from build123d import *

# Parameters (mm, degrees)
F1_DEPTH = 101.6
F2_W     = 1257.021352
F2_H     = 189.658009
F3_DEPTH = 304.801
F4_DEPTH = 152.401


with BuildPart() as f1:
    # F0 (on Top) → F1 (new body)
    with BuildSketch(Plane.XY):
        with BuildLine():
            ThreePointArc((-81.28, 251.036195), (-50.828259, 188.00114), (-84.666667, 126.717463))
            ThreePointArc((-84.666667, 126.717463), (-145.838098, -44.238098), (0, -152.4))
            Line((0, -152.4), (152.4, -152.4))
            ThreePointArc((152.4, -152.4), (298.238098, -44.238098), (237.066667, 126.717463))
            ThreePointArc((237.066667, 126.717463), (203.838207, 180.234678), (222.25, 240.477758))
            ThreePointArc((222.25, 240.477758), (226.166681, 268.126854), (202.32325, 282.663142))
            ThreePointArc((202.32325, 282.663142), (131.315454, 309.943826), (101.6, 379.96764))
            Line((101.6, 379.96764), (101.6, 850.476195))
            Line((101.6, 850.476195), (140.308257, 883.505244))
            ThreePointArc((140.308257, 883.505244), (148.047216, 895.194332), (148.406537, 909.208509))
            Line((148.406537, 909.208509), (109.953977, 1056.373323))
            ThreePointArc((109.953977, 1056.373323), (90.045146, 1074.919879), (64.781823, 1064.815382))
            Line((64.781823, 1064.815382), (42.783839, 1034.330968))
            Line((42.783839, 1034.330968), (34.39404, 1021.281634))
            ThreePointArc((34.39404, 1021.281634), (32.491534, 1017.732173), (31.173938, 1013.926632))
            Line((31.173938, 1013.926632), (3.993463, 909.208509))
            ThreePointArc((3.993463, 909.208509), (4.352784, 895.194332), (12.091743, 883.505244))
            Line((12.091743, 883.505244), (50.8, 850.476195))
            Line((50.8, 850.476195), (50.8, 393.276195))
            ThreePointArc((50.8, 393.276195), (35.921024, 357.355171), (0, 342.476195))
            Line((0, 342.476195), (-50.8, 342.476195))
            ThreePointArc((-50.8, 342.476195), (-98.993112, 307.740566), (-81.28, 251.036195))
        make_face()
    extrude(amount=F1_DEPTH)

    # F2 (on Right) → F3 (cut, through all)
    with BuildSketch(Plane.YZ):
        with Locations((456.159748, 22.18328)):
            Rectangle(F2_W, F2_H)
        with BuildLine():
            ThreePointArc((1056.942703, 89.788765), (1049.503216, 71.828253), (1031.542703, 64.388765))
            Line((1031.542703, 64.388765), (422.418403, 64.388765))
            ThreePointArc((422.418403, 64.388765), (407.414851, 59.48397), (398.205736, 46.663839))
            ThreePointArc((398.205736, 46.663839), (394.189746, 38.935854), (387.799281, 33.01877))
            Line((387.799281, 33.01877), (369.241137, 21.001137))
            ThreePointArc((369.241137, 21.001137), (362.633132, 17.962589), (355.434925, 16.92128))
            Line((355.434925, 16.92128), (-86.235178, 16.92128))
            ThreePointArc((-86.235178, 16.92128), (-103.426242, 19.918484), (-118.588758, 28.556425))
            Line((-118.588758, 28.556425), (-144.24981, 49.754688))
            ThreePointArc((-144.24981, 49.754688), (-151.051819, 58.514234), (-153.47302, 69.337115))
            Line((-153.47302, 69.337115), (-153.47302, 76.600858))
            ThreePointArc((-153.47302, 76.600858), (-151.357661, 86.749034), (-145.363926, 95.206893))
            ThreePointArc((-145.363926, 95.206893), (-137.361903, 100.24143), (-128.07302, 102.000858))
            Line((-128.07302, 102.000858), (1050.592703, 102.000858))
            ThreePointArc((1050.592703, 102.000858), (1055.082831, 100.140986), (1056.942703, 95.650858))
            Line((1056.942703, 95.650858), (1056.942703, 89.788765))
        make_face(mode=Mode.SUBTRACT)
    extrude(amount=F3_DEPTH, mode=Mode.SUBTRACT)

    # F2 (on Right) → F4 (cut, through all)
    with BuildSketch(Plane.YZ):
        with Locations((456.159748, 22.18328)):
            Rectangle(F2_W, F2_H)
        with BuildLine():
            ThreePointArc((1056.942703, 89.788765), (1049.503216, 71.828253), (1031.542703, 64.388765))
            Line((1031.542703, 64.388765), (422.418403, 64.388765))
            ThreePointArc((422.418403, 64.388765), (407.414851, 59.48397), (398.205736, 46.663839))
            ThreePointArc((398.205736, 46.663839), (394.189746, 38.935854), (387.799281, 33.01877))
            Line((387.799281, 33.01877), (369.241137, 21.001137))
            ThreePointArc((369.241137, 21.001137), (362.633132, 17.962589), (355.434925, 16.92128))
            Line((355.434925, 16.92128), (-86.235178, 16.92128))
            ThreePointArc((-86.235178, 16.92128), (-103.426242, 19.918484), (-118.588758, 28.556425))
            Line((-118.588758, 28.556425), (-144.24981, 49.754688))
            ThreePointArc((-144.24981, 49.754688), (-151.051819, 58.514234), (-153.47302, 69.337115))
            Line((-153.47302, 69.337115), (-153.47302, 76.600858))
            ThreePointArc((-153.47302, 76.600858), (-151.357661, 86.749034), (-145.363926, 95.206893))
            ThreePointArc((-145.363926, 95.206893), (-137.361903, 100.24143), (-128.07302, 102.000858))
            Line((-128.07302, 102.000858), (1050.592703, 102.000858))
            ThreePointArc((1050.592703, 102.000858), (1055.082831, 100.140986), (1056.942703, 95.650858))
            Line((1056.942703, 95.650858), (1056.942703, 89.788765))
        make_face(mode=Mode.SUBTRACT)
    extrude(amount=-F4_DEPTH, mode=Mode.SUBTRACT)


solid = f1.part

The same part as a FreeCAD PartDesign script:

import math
import FreeCAD as App
import Part
import Sketcher
from FreeCAD import Vector
Q = App.Units.Quantity

doc = App.newDocument("Part")
body = doc.addObject("PartDesign::Body", "Body")

sketch1 = doc.addObject("Sketcher::SketchObject", "Sketch")
body.addObject(sketch1)
sketch1.AttachmentSupport = (doc.XY_Plane, [""])
sketch1.MapMode = "FlatFace"
sketch1.addGeometry([
    Part.ArcOfCircle(Part.Circle(Vector(-127, 190.076195, 0), Vector(0, 0, 1), 76.2), math.radians(-56.251012), math.radians(53.130102)),
    Part.ArcOfCircle(Part.Circle(Vector(-0.000001, 0, 0), Vector(0, 0, 1), 152.4), math.radians(123.748988), math.radians(270)),
    Part.LineSegment(Vector(0, -152.4, 0), Vector(152.4, -152.4, 0)),
    Part.ArcOfCircle(Part.Circle(Vector(152.400001, 0, 0), Vector(0, 0, 1), 152.4), math.radians(-90), math.radians(56.251012)),
    Part.ArcOfCircle(Part.Circle(Vector(279.4, 190.076195, 0), Vector(0, 0, 1), 76.2), math.radians(138.590378), math.radians(236.251012)),
    Part.ArcOfCircle(Part.Circle(Vector(203.200001, 257.278279, 0), Vector(0, 0, 1), 25.399999), math.radians(-41.409624), math.radians(91.978115)),
    Part.ArcOfCircle(Part.Circle(Vector(198.962519, 379.967641, 0), Vector(0, 0, 1), 97.362519), math.radians(-179.999999), math.radians(-88.021888)),
    Part.LineSegment(Vector(101.6, 379.96764, 0), Vector(101.6, 850.476195, 0)),
    Part.LineSegment(Vector(101.6, 850.476195, 0), Vector(140.308257, 883.505244, 0)),
    Part.ArcOfCircle(Part.Circle(Vector(123.821201, 902.827178, 0), Vector(0, 0, 1), 25.400003), math.radians(-49.526474), math.radians(14.550516)),
    Part.LineSegment(Vector(148.406537, 909.208509, 0), Vector(109.953977, 1056.373323, 0)),
    Part.ArcOfCircle(Part.Circle(Vector(85.379019, 1049.952155, 0), Vector(0, 0, 1), 25.4), math.radians(14.643376), math.radians(144.185252)),
    Part.LineSegment(Vector(64.781823, 1064.815382, 0), Vector(42.783839, 1034.330968, 0)),
    Part.LineSegment(Vector(42.783839, 1034.330968, 0), Vector(34.39404, 1021.281634, 0)),
    Part.ArcOfCircle(Part.Circle(Vector(55.759293, 1007.545289, 0), Vector(0, 0, 1), 25.400024), math.radians(147.261851), math.radians(165.449468)),
    Part.LineSegment(Vector(31.173938, 1013.926632, 0), Vector(3.993463, 909.208509, 0)),
    Part.ArcOfCircle(Part.Circle(Vector(28.578799, 902.827178, 0), Vector(0, 0, 1), 25.400003), math.radians(165.449484), math.radians(229.526474)),
    Part.LineSegment(Vector(12.091743, 883.505244, 0), Vector(50.8, 850.476195, 0)),
    Part.LineSegment(Vector(50.8, 850.476195, 0), Vector(50.8, 393.276195, 0)),
    Part.ArcOfCircle(Part.Circle(Vector(-0.000002, 393.276197, 0), Vector(0, 0, 1), 50.800002), math.radians(-89.999998), math.radians(-0.000002)),
    Part.LineSegment(Vector(0, 342.476195, 0), Vector(-50.8, 342.476195, 0)),
    Part.ArcOfCircle(Part.Circle(Vector(-50.800001, 291.676195, 0), Vector(0, 0, 1), 50.8), math.radians(89.999999), math.radians(233.130103)),
], False)
sketch1.addConstraint([
    Sketcher.Constraint("Tangent", 0, 1, 1, 1),
    Sketcher.Constraint("Tangent", 1, 2, 2, 1),
    Sketcher.Constraint("Tangent", 2, 2, 3, 1),
    Sketcher.Constraint("Tangent", 3, 2, 4, 2),
    Sketcher.Constraint("Tangent", 4, 1, 5, 1),
    Sketcher.Constraint("Tangent", 5, 2, 6, 2),
    Sketcher.Constraint("Tangent", 6, 1, 7, 1),
    Sketcher.Constraint("Coincident", 7, 2, 8, 1),
    Sketcher.Constraint("Tangent", 8, 2, 9, 1),
    Sketcher.Constraint("Coincident", 9, 2, 10, 1),
    Sketcher.Constraint("Tangent", 10, 2, 11, 1),
    Sketcher.Constraint("Tangent", 11, 2, 12, 1),
    Sketcher.Constraint("Coincident", 12, 2, 13, 1),
    Sketcher.Constraint("Tangent", 13, 2, 14, 1),
    Sketcher.Constraint("Tangent", 14, 2, 15, 1),
    Sketcher.Constraint("Tangent", 15, 2, 16, 1),
    Sketcher.Constraint("Tangent", 16, 2, 17, 1),
    Sketcher.Constraint("Coincident", 17, 2, 18, 1),
    Sketcher.Constraint("Tangent", 18, 2, 19, 2),
    Sketcher.Constraint("Tangent", 19, 1, 20, 1),
    Sketcher.Constraint("Tangent", 20, 2, 21, 1),
    Sketcher.Constraint("Tangent", 21, 2, 0, 2),
    Sketcher.Constraint("Horizontal", 2),
    Sketcher.Constraint("Vertical", 7),
    Sketcher.Constraint("Vertical", 18),
    Sketcher.Constraint("Horizontal", 20),
    Sketcher.Constraint("Coincident", 1, 3, -1, 1),
    Sketcher.Constraint("Equal", 1, 3),
    Sketcher.Constraint("Equal", 0, 4),
    Sketcher.Constraint("Equal", 5, 11),
    Sketcher.Constraint("Equal", 9, 16),
    Sketcher.Constraint("Equal", 19, 21),
    Sketcher.Constraint("PointOnObject", 19, 3, -2),
    Sketcher.Constraint("Horizontal", 0, 3, 4, 3),
    Sketcher.Constraint("Horizontal", 9, 3, 16, 3),
    Sketcher.Constraint("Horizontal", 9, 2, 15, 2),
    Sketcher.Constraint("Horizontal", 8, 2, 16, 2),
    Sketcher.Constraint("Horizontal", 7, 2, 17, 2),
    Sketcher.Constraint("Radius", 0, Q("3 in")),
    Sketcher.Constraint("Radius", 1, Q("6 in")),
    Sketcher.Constraint("Radius", 5, Q("1 in")),
    Sketcher.Constraint("Radius", 9, Q("1.0000001 in")),
    Sketcher.Constraint("Radius", 19, Q("2.0000001 in")),
    Sketcher.Constraint("DistanceX", 2, 1, 2, 2, Q("6 in")),
    Sketcher.Constraint("DistanceX", 20, 2, 20, 1, Q("2 in")),
    Sketcher.Constraint("DistanceY", 18, 2, 18, 1, Q("18 in")),
    Sketcher.Constraint("DistanceX", 0, 3, -1, 1, Q("5 in")),
    Sketcher.Constraint("DistanceX", -1, 1, 5, 3, Q("8 in")),
    Sketcher.Constraint("DistanceX", -1, 1, 6, 1, Q("4 in")),
    Sketcher.Constraint("Radius", 6, 97.362519),
    Sketcher.Constraint("Radius", 14, 25.400024),
    Sketcher.Constraint("DistanceX", -1, 1, 9, 3, 123.821201),
    Sketcher.Constraint("DistanceY", 5, 3, 9, 3, 645.548899),
    Sketcher.Constraint("DistanceX", 11, 3, 6, 3, 113.5835),
    Sketcher.Constraint("DistanceX", 13, 2, 12, 2, 8.389799),
    Sketcher.Constraint("DistanceX", 14, 2, 13, 2, 3.220102),
    Sketcher.Constraint("DistanceY", -1, 1, 14, 3, 1007.545289),
    Sketcher.Constraint("DistanceY", -1, 1, 9, 2, 909.208509),
    Sketcher.Constraint("DistanceY", -1, 1, 11, 2, 1064.815382),
])
pad1 = doc.addObject("PartDesign::Pad", "Pad")
body.addObject(pad1)
pad1.Profile = sketch1
pad1.Length = Q("4 in")

sketch2 = doc.addObject("Sketcher::SketchObject", "Sketch001")
body.addObject(sketch2)
sketch2.AttachmentSupport = (doc.YZ_Plane, [""])
sketch2.MapMode = "FlatFace"
sketch2.addGeometry([
    Part.LineSegment(Vector(-172.350928, 117.012285, 0), Vector(-172.350928, -72.645725, 0)),
    Part.LineSegment(Vector(-172.350928, -72.645725, 0), Vector(1084.670424, -72.645725, 0)),
    Part.LineSegment(Vector(1084.670424, -72.645725, 0), Vector(1084.670424, 117.012285, 0)),
    Part.LineSegment(Vector(1084.670424, 117.012285, 0), Vector(-172.350928, 117.012285, 0)),
    Part.LineSegment(Vector(1056.942703, 95.650858, 0), Vector(1056.942703, 89.788765, 0)),
    Part.ArcOfCircle(Part.Circle(Vector(1031.542704, 89.788764, 0), Vector(0, 0, 1), 25.399999), math.radians(-90.000002), math.radians(0.000002)),
    Part.LineSegment(Vector(1031.542703, 64.388765, 0), Vector(422.418403, 64.388765, 0)),
    Part.ArcOfCircle(Part.Circle(Vector(422.418403, 38.988765, 0), Vector(0, 0, 1), 25.4), math.radians(90), math.radians(162.412119)),
    Part.ArcOfCircle(Part.Circle(Vector(373.993067, 54.338915, 0), Vector(0, 0, 1), 25.400002), math.radians(-57.074255), math.radians(-17.587884)),
    Part.LineSegment(Vector(387.799281, 33.01877, 0), Vector(369.241137, 21.001137, 0)),
    Part.ArcOfCircle(Part.Circle(Vector(355.434927, 42.321272, 0), Vector(0, 0, 1), 25.399992), math.radians(-90.000004), math.radians(-57.074249)),
    Part.LineSegment(Vector(355.434925, 16.92128, 0), Vector(-86.235178, 16.92128, 0)),
    Part.ArcOfCircle(Part.Circle(Vector(-86.235177, 67.721283, 0), Vector(0, 0, 1), 50.800003), math.radians(-129.55967), math.radians(-90.000001)),
    Part.LineSegment(Vector(-118.588758, 28.556425, 0), Vector(-144.24981, 49.754688, 0)),
    Part.ArcOfCircle(Part.Circle(Vector(-128.073014, 69.337118, 0), Vector(0, 0, 1), 25.400006), math.radians(-179.999992), math.radians(-129.559678)),
    Part.LineSegment(Vector(-153.47302, 69.337115, 0), Vector(-153.47302, 76.600858, 0)),
    Part.ArcOfCircle(Part.Circle(Vector(-128.07302, 76.600857, 0), Vector(0, 0, 1), 25.4), math.radians(132.901835), math.radians(179.999998)),
    Part.ArcOfCircle(Part.Circle(Vector(-128.07302, 76.60086, 0), Vector(0, 0, 1), 25.399998), math.radians(90), math.radians(132.90184)),
    Part.LineSegment(Vector(-128.07302, 102.000858, 0), Vector(1050.592703, 102.000858, 0)),
    Part.ArcOfCircle(Part.Circle(Vector(1050.592703, 95.650858, 0), Vector(0, 0, 1), 6.35), math.radians(0.000002), math.radians(89.999998)),
], False)
sketch2.addConstraint([
    Sketcher.Constraint("Coincident", 0, 2, 1, 1),
    Sketcher.Constraint("Coincident", 1, 2, 2, 1),
    Sketcher.Constraint("Coincident", 2, 2, 3, 1),
    Sketcher.Constraint("Coincident", 3, 2, 0, 1),
    Sketcher.Constraint("Coincident", 4, 2, 5, 2),
    Sketcher.Constraint("Coincident", 5, 1, 6, 1),
    Sketcher.Constraint("Coincident", 6, 2, 7, 1),
    Sketcher.Constraint("Coincident", 7, 2, 8, 2),
    Sketcher.Constraint("Coincident", 8, 1, 9, 1),
    Sketcher.Constraint("Coincident", 9, 2, 10, 2),
    Sketcher.Constraint("Coincident", 10, 1, 11, 1),
    Sketcher.Constraint("Coincident", 11, 2, 12, 2),
    Sketcher.Constraint("Coincident", 12, 1, 13, 1),
    Sketcher.Constraint("Coincident", 13, 2, 14, 2),
    Sketcher.Constraint("Coincident", 14, 1, 15, 1),
    Sketcher.Constraint("Coincident", 15, 2, 16, 2),
    Sketcher.Constraint("Coincident", 16, 1, 17, 2),
    Sketcher.Constraint("Coincident", 17, 1, 18, 1),
    Sketcher.Constraint("Coincident", 18, 2, 19, 2),
    Sketcher.Constraint("Coincident", 19, 1, 4, 1),
    Sketcher.Constraint("Vertical", 0),
    Sketcher.Constraint("Horizontal", 1),
    Sketcher.Constraint("Vertical", 2),
    Sketcher.Constraint("Horizontal", 3),
    Sketcher.Constraint("Vertical", 4),
    Sketcher.Constraint("Horizontal", 6),
    Sketcher.Constraint("Horizontal", 11),
    Sketcher.Constraint("Vertical", 15),
    Sketcher.Constraint("Horizontal", 18),
    Sketcher.Constraint("Coincident", 17, 3, 16, 3),
    Sketcher.Constraint("Radius", 5, Q("1 in")),
    Sketcher.Constraint("Radius", 7, Q("1 in")),
    Sketcher.Constraint("Radius", 8, Q("1.0000001 in")),
    Sketcher.Constraint("Radius", 12, Q("2.0000001 in")),
    Sketcher.Constraint("Radius", 16, Q("1 in")),
    Sketcher.Constraint("Radius", 19, Q("0.25 in")),
    Sketcher.Constraint("DistanceY", 7, 3, 4, 2, Q("2 in")),
    Sketcher.Constraint("DistanceX", 5, 1, 4, 2, Q("1 in")),
    Sketcher.Constraint("DistanceX", 15, 2, 17, 1, Q("1 in")),
    Sketcher.Constraint("DistanceY", 15, 2, 17, 1, Q("1 in")),
    Sketcher.Constraint("DistanceX", 18, 2, 4, 2, Q("0.25 in")),
    Sketcher.Constraint("DistanceY", 19, 1, 18, 2, Q("0.25 in")),
    Sketcher.Constraint("Radius", 10, 25.399992),
    Sketcher.Constraint("DistanceX", 6, 2, 6, 1, 609.1243),
    Sketcher.Constraint("Radius", 14, 25.400006),
    Sketcher.Constraint("DistanceX", 1, 1, 1, 2, 1257.021352),
    Sketcher.Constraint("DistanceY", 0, 2, 0, 1, 189.658009),
    Sketcher.Constraint("DistanceX", 7, 3, 5, 3, 609.124301),
    Sketcher.Constraint("DistanceY", 12, 3, 3, 2, 49.291002),
    Sketcher.Constraint("DistanceY", 8, 1, 10, 3, 9.302502),
    Sketcher.Constraint("DistanceX", 9, 2, 7, 2, 28.964599),
    Sketcher.Constraint("DistanceY", 9, 2, 7, 2, 25.662702),
    Sketcher.Constraint("Distance", 9, 22.10946),
    Sketcher.Constraint("Distance", 13, 33.28447),
    Sketcher.Constraint("DistanceX", 11, 2, 11, 1, 441.670103),
    Sketcher.Constraint("DistanceX", 18, 1, 18, 2, 1178.665723),
    Sketcher.Constraint("DistanceY", 4, 2, 4, 1, 5.862093),
    Sketcher.Constraint("DistanceY", 15, 1, 15, 2, 7.263743),
    Sketcher.Constraint("DistanceY", -1, 1, 10, 3, 42.321272),
    Sketcher.Constraint("DistanceY", -1, 1, 14, 3, 69.337118),
    Sketcher.Constraint("DistanceX", 16, 3, -1, 1, 128.07302),
    Sketcher.Constraint("DistanceY", -1, 1, 17, 3, 76.60086),
    Sketcher.Constraint("DistanceX", 0, 2, -1, 1, 172.350928),
    Sketcher.Constraint("DistanceY", -1, 1, 7, 2, 46.663839),
    Sketcher.Constraint("DistanceX", 11, 2, -1, 1, 86.235178),
    Sketcher.Constraint("DistanceX", 12, 1, -1, 1, 118.588758),
    Sketcher.Constraint("DistanceX", 13, 2, -1, 1, 144.24981),
    Sketcher.Constraint("DistanceY", 14, 1, 16, 1, 25.869778),
])
pocket1 = doc.addObject("PartDesign::Pocket", "Pocket")
body.addObject(pocket1)
pocket1.Profile = sketch2
pocket1.Type = "ThroughAll"
pocket1.Reversed = True

sketch3 = doc.addObject("Sketcher::SketchObject", "Sketch002")
body.addObject(sketch3)
sketch3.AttachmentSupport = (doc.YZ_Plane, [""])
sketch3.MapMode = "FlatFace"
sketch3.addGeometry([
    Part.LineSegment(Vector(-172.350928, 117.012285, 0), Vector(-172.350928, -72.645725, 0)),
    Part.LineSegment(Vector(-172.350928, -72.645725, 0), Vector(1084.670424, -72.645725, 0)),
    Part.LineSegment(Vector(1084.670424, -72.645725, 0), Vector(1084.670424, 117.012285, 0)),
    Part.LineSegment(Vector(1084.670424, 117.012285, 0), Vector(-172.350928, 117.012285, 0)),
    Part.LineSegment(Vector(1056.942703, 95.650858, 0), Vector(1056.942703, 89.788765, 0)),
    Part.ArcOfCircle(Part.Circle(Vector(1031.542704, 89.788764, 0), Vector(0, 0, 1), 25.399999), math.radians(-90.000002), math.radians(0.000002)),
    Part.LineSegment(Vector(1031.542703, 64.388765, 0), Vector(422.418403, 64.388765, 0)),
    Part.ArcOfCircle(Part.Circle(Vector(422.418403, 38.988765, 0), Vector(0, 0, 1), 25.4), math.radians(90), math.radians(162.412119)),
    Part.ArcOfCircle(Part.Circle(Vector(373.993067, 54.338915, 0), Vector(0, 0, 1), 25.400002), math.radians(-57.074255), math.radians(-17.587884)),
    Part.LineSegment(Vector(387.799281, 33.01877, 0), Vector(369.241137, 21.001137, 0)),
    Part.ArcOfCircle(Part.Circle(Vector(355.434927, 42.321272, 0), Vector(0, 0, 1), 25.399992), math.radians(-90.000004), math.radians(-57.074249)),
    Part.LineSegment(Vector(355.434925, 16.92128, 0), Vector(-86.235178, 16.92128, 0)),
    Part.ArcOfCircle(Part.Circle(Vector(-86.235177, 67.721283, 0), Vector(0, 0, 1), 50.800003), math.radians(-129.55967), math.radians(-90.000001)),
    Part.LineSegment(Vector(-118.588758, 28.556425, 0), Vector(-144.24981, 49.754688, 0)),
    Part.ArcOfCircle(Part.Circle(Vector(-128.073014, 69.337118, 0), Vector(0, 0, 1), 25.400006), math.radians(-179.999992), math.radians(-129.559678)),
    Part.LineSegment(Vector(-153.47302, 69.337115, 0), Vector(-153.47302, 76.600858, 0)),
    Part.ArcOfCircle(Part.Circle(Vector(-128.07302, 76.600857, 0), Vector(0, 0, 1), 25.4), math.radians(132.901835), math.radians(179.999998)),
    Part.ArcOfCircle(Part.Circle(Vector(-128.07302, 76.60086, 0), Vector(0, 0, 1), 25.399998), math.radians(90), math.radians(132.90184)),
    Part.LineSegment(Vector(-128.07302, 102.000858, 0), Vector(1050.592703, 102.000858, 0)),
    Part.ArcOfCircle(Part.Circle(Vector(1050.592703, 95.650858, 0), Vector(0, 0, 1), 6.35), math.radians(0.000002), math.radians(89.999998)),
], False)
sketch3.addConstraint([
    Sketcher.Constraint("Coincident", 0, 2, 1, 1),
    Sketcher.Constraint("Coincident", 1, 2, 2, 1),
    Sketcher.Constraint("Coincident", 2, 2, 3, 1),
    Sketcher.Constraint("Coincident", 3, 2, 0, 1),
    Sketcher.Constraint("Coincident", 4, 2, 5, 2),
    Sketcher.Constraint("Coincident", 5, 1, 6, 1),
    Sketcher.Constraint("Coincident", 6, 2, 7, 1),
    Sketcher.Constraint("Coincident", 7, 2, 8, 2),
    Sketcher.Constraint("Coincident", 8, 1, 9, 1),
    Sketcher.Constraint("Coincident", 9, 2, 10, 2),
    Sketcher.Constraint("Coincident", 10, 1, 11, 1),
    Sketcher.Constraint("Coincident", 11, 2, 12, 2),
    Sketcher.Constraint("Coincident", 12, 1, 13, 1),
    Sketcher.Constraint("Coincident", 13, 2, 14, 2),
    Sketcher.Constraint("Coincident", 14, 1, 15, 1),
    Sketcher.Constraint("Coincident", 15, 2, 16, 2),
    Sketcher.Constraint("Coincident", 16, 1, 17, 2),
    Sketcher.Constraint("Coincident", 17, 1, 18, 1),
    Sketcher.Constraint("Coincident", 18, 2, 19, 2),
    Sketcher.Constraint("Coincident", 19, 1, 4, 1),
    Sketcher.Constraint("Vertical", 0),
    Sketcher.Constraint("Horizontal", 1),
    Sketcher.Constraint("Vertical", 2),
    Sketcher.Constraint("Horizontal", 3),
    Sketcher.Constraint("Vertical", 4),
    Sketcher.Constraint("Horizontal", 6),
    Sketcher.Constraint("Horizontal", 11),
    Sketcher.Constraint("Vertical", 15),
    Sketcher.Constraint("Horizontal", 18),
    Sketcher.Constraint("Coincident", 17, 3, 16, 3),
    Sketcher.Constraint("Radius", 5, Q("1 in")),
    Sketcher.Constraint("Radius", 7, Q("1 in")),
    Sketcher.Constraint("Radius", 8, Q("1.0000001 in")),
    Sketcher.Constraint("Radius", 12, Q("2.0000001 in")),
    Sketcher.Constraint("Radius", 16, Q("1 in")),
    Sketcher.Constraint("Radius", 19, Q("0.25 in")),
    Sketcher.Constraint("DistanceY", 7, 3, 4, 2, Q("2 in")),
    Sketcher.Constraint("DistanceX", 5, 1, 4, 2, Q("1 in")),
    Sketcher.Constraint("DistanceX", 15, 2, 17, 1, Q("1 in")),
    Sketcher.Constraint("DistanceY", 15, 2, 17, 1, Q("1 in")),
    Sketcher.Constraint("DistanceX", 18, 2, 4, 2, Q("0.25 in")),
    Sketcher.Constraint("DistanceY", 19, 1, 18, 2, Q("0.25 in")),
    Sketcher.Constraint("Radius", 10, 25.399992),
    Sketcher.Constraint("DistanceX", 6, 2, 6, 1, 609.1243),
    Sketcher.Constraint("Radius", 14, 25.400006),
    Sketcher.Constraint("DistanceX", 1, 1, 1, 2, 1257.021352),
    Sketcher.Constraint("DistanceY", 0, 2, 0, 1, 189.658009),
    Sketcher.Constraint("DistanceX", 7, 3, 5, 3, 609.124301),
    Sketcher.Constraint("DistanceY", 12, 3, 3, 2, 49.291002),
    Sketcher.Constraint("DistanceY", 8, 1, 10, 3, 9.302502),
    Sketcher.Constraint("DistanceX", 9, 2, 7, 2, 28.964599),
    Sketcher.Constraint("DistanceY", 9, 2, 7, 2, 25.662702),
    Sketcher.Constraint("Distance", 9, 22.10946),
    Sketcher.Constraint("Distance", 13, 33.28447),
    Sketcher.Constraint("DistanceX", 11, 2, 11, 1, 441.670103),
    Sketcher.Constraint("DistanceX", 18, 1, 18, 2, 1178.665723),
    Sketcher.Constraint("DistanceY", 4, 2, 4, 1, 5.862093),
    Sketcher.Constraint("DistanceY", 15, 1, 15, 2, 7.263743),
    Sketcher.Constraint("DistanceY", -1, 1, 10, 3, 42.321272),
    Sketcher.Constraint("DistanceY", -1, 1, 14, 3, 69.337118),
    Sketcher.Constraint("DistanceX", 16, 3, -1, 1, 128.07302),
    Sketcher.Constraint("DistanceY", -1, 1, 17, 3, 76.60086),
    Sketcher.Constraint("DistanceX", 0, 2, -1, 1, 172.350928),
    Sketcher.Constraint("DistanceY", -1, 1, 7, 2, 46.663839),
    Sketcher.Constraint("DistanceX", 11, 2, -1, 1, 86.235178),
    Sketcher.Constraint("DistanceX", 12, 1, -1, 1, 118.588758),
    Sketcher.Constraint("DistanceX", 13, 2, -1, 1, 144.24981),
    Sketcher.Constraint("DistanceY", 14, 1, 16, 1, 25.869778),
])
pocket2 = doc.addObject("PartDesign::Pocket", "Pocket001")
body.addObject(pocket2)
pocket2.Profile = sketch3
pocket2.Type = "ThroughAll"

doc.recompute()
